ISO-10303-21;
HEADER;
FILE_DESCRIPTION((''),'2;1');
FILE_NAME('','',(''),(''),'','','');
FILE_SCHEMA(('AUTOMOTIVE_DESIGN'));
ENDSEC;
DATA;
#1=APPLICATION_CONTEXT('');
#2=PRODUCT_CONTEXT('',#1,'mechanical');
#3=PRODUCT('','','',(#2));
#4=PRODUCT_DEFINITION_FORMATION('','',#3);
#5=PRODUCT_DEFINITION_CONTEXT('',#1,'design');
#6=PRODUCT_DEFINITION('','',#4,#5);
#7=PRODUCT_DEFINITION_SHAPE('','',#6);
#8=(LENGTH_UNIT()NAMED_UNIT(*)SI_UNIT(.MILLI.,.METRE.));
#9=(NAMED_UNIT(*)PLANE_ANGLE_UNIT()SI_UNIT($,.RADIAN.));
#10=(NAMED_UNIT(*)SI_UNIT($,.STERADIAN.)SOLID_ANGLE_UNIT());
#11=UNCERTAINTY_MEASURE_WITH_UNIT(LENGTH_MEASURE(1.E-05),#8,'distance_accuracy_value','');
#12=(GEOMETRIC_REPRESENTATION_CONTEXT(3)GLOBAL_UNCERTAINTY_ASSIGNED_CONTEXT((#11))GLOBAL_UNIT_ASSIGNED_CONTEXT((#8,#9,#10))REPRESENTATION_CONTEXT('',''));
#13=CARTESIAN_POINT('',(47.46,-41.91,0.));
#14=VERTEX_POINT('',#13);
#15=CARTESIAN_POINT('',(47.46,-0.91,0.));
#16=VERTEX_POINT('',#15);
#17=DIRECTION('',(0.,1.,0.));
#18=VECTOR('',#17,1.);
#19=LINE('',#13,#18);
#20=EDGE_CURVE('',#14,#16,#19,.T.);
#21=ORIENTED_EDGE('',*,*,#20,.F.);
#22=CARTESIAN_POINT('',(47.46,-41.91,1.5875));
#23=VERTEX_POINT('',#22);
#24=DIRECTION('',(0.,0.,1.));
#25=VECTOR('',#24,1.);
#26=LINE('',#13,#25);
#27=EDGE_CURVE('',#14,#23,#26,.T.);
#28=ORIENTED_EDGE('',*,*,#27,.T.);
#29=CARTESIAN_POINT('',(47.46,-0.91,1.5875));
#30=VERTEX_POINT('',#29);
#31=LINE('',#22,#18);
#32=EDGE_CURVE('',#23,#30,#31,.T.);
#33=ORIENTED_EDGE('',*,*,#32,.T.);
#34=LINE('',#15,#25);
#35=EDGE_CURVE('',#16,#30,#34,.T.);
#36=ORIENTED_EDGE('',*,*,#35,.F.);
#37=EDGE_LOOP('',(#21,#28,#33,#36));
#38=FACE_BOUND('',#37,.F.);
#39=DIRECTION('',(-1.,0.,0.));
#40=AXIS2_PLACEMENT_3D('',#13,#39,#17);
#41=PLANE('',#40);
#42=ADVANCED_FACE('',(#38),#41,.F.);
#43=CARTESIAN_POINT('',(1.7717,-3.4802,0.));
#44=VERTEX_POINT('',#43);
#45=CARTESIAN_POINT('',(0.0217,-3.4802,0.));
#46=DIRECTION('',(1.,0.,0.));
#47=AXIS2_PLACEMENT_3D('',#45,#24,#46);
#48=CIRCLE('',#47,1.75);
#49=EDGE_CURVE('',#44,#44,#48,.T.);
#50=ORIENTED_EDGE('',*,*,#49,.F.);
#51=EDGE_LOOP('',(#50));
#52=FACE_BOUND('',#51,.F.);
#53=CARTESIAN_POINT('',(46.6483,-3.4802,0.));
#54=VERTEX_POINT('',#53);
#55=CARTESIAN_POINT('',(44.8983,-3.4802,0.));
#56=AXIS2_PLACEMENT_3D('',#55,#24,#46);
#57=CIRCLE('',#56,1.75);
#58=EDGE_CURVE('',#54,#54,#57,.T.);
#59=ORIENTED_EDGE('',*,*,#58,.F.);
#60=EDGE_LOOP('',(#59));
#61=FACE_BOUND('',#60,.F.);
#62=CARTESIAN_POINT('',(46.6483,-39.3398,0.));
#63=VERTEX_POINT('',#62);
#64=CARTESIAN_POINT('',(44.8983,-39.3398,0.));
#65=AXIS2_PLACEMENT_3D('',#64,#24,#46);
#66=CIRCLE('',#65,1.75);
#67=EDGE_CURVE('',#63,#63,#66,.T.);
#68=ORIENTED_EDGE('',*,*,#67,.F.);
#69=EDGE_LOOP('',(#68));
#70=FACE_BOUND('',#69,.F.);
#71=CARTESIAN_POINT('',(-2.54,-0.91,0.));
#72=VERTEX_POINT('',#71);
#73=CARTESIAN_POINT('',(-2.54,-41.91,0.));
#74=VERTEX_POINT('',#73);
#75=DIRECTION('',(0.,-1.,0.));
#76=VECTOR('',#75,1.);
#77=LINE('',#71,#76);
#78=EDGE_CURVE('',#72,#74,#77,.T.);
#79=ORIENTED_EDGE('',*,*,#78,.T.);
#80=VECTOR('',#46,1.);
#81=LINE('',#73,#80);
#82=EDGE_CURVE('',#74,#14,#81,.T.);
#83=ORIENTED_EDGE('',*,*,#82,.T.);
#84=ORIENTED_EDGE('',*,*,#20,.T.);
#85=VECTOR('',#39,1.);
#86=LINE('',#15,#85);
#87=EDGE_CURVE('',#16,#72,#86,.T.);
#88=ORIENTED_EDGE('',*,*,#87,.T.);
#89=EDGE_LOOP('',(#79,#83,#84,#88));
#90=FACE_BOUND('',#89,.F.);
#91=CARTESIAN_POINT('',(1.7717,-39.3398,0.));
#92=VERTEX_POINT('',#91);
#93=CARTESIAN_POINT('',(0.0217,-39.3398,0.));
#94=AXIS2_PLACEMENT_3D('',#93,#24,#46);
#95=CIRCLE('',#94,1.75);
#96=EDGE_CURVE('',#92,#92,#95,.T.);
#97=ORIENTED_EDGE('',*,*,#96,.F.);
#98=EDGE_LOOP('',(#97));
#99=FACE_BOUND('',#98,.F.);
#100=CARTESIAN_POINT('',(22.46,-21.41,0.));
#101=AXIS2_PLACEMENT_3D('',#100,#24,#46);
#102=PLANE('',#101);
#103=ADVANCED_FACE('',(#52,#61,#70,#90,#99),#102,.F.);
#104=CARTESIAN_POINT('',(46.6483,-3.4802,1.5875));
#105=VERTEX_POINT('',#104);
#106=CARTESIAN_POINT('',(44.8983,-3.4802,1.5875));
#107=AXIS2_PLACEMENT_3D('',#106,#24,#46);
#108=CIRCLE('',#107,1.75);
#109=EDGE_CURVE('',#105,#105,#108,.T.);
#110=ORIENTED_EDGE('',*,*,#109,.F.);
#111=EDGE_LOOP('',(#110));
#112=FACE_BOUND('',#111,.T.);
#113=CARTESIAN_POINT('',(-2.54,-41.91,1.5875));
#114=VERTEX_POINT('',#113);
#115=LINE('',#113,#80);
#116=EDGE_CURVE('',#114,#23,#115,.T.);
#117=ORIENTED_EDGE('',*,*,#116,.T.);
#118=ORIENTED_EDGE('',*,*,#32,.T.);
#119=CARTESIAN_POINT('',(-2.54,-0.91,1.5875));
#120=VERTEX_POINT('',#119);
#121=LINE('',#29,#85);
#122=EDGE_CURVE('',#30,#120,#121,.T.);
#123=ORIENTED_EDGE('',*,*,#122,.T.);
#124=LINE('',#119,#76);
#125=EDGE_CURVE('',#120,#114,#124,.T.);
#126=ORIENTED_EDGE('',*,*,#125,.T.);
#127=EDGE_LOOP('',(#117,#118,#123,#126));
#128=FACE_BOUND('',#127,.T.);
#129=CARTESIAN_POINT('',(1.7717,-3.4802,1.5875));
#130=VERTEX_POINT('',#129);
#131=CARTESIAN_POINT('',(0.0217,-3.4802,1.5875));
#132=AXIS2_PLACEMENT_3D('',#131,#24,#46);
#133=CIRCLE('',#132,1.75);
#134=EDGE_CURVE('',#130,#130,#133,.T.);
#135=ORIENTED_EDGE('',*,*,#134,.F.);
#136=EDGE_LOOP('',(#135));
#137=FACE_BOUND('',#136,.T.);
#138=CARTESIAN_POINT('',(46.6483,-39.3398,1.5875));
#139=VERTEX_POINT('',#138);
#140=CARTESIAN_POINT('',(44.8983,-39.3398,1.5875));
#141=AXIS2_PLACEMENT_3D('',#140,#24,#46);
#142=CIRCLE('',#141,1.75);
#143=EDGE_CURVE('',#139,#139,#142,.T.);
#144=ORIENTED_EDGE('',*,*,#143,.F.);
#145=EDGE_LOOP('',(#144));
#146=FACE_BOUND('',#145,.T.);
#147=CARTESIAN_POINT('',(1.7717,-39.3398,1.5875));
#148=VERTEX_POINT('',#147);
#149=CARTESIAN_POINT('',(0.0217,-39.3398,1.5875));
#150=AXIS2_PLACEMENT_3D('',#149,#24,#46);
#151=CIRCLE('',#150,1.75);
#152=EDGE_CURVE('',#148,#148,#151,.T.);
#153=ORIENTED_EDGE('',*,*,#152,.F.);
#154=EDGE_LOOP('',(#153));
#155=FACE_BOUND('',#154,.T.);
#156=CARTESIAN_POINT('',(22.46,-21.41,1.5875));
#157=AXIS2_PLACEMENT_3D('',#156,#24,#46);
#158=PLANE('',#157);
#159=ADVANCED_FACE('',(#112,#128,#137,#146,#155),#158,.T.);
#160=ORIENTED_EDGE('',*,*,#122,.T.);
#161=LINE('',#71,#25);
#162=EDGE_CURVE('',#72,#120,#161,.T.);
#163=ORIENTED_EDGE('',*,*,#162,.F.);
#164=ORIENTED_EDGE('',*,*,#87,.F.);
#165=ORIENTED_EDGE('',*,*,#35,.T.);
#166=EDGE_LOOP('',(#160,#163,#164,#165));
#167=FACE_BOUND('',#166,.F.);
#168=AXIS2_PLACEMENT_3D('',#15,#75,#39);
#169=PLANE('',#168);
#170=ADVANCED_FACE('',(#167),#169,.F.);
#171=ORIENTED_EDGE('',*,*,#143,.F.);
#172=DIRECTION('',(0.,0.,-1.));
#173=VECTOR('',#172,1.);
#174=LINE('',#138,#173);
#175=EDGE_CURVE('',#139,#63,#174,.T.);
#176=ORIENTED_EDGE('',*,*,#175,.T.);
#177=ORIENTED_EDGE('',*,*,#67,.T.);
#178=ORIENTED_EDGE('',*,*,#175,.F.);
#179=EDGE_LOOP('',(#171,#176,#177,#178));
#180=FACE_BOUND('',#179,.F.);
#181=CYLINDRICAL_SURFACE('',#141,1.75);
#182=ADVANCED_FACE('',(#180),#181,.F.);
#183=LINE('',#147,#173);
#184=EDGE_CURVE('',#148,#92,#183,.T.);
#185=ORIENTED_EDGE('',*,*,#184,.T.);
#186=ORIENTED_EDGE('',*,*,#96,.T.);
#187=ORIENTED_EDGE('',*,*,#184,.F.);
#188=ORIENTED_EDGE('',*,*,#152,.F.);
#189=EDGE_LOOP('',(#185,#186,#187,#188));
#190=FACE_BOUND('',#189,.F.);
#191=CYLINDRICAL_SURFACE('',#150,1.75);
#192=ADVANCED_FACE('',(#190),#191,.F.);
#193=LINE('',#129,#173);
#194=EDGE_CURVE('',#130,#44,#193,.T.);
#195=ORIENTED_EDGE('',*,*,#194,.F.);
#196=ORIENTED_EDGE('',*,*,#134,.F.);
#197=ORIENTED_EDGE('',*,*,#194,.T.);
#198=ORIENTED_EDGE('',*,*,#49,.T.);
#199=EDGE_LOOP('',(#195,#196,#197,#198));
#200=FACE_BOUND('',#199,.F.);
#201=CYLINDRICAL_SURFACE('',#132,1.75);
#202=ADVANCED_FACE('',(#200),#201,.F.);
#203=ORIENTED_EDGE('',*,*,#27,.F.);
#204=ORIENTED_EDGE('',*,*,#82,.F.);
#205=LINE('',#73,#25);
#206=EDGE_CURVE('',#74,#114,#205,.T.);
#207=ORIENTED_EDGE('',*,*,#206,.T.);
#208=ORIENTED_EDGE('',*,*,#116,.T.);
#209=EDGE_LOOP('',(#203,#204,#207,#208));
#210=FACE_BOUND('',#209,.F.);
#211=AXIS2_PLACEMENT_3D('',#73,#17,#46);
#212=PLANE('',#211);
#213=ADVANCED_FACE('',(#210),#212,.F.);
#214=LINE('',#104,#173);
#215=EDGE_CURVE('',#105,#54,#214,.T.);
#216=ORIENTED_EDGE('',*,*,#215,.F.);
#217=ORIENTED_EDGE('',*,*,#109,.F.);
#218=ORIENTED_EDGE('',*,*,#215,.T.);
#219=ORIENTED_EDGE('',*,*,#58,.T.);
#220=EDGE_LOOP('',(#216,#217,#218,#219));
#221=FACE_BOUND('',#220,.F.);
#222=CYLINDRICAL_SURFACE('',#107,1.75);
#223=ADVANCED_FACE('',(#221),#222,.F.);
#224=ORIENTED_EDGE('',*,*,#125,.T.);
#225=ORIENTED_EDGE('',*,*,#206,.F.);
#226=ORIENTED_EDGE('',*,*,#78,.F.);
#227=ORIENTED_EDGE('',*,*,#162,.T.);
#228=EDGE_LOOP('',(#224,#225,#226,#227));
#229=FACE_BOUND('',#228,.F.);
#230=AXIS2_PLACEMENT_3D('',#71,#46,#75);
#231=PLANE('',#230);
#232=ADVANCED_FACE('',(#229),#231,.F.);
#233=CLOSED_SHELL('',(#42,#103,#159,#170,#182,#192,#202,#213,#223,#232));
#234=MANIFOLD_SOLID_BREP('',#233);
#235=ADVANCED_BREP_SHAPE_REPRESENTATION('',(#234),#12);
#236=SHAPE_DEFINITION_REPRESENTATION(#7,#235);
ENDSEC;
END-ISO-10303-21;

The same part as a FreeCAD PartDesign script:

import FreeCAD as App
import Part
import Sketcher
Q = App.Units.Quantity

doc = App.newDocument("Part")
params = doc.addObject("Spreadsheet::Sheet", "Params")
for row, (alias, value) in enumerate([
    ("pad1_length", "0.0625 in"),
    ("pocket1_length", "1.31 in"),
], start=1):
    params.set(f"A{row}", alias)
    params.set(f"B{row}", "=" + value)
    params.setAlias(f"B{row}", alias)

body = doc.addObject("PartDesign::Body", "Body")

# Sketch on XY plane
sketch1 = body.newObject("Sketcher::SketchObject", "Sketch")
sketch1.AttachmentSupport = (doc.getObject("XY_Plane"), [""])
sketch1.MapMode = "FlatFace"
sketch1.addGeometry(Part.LineSegment(App.Vector(47.46, -0.91, 0), App.Vector(-2.54, -0.91, 0)), False)
sketch1.addGeometry(Part.LineSegment(App.Vector(-2.54, -0.91, 0), App.Vector(-2.54, -41.91, 0)), False)
sketch1.addGeometry(Part.LineSegment(App.Vector(-2.54, -41.91, 0), App.Vector(47.46, -41.91, 0)), False)
sketch1.addGeometry(Part.LineSegment(App.Vector(47.46, -41.91, 0), App.Vector(47.46, -0.91, 0)), False)
sketch1.addConstraint(Sketcher.Constraint("Coincident", 0, 2, 1, 1))
sketch1.addConstraint(Sketcher.Constraint("Coincident", 1, 2, 2, 1))
sketch1.addConstraint(Sketcher.Constraint("Coincident", 2, 2, 3, 1))
sketch1.addConstraint(Sketcher.Constraint("Coincident", 3, 2, 0, 1))
sketch1.addConstraint(Sketcher.Constraint("Horizontal", 0))
sketch1.addConstraint(Sketcher.Constraint("Vertical", 1))
sketch1.addConstraint(Sketcher.Constraint("Horizontal", 2))
sketch1.addConstraint(Sketcher.Constraint("Vertical", 3))
sketch1.addConstraint(Sketcher.Constraint("DistanceX", 0, 2, -1, 1, Q("0.1 in")))
sketch1.addConstraint(Sketcher.Constraint("DistanceY", 1, 2, -1, 1, Q("1.65 in")))
sketch1.addConstraint(Sketcher.Constraint("DistanceX", 0, 2, 0, 1, Q("1.9685 in")))
sketch1.addConstraint(Sketcher.Constraint("DistanceY", 1, 2, 1, 1, Q("41 mm")))
pad1 = body.newObject("PartDesign::Pad", "Pad")
pad1.Profile = sketch1
pad1.setExpression("Length", "Params.pad1_length")

# Sketch on XY plane
sketch2 = body.newObject("Sketcher::SketchObject", "Sketch001")
sketch2.AttachmentSupport = (doc.getObject("XY_Plane"), [""])
sketch2.MapMode = "FlatFace"
sketch2.AttachmentOffset = App.Placement(App.Vector(0, 0, 0.0625 * 25.4), App.Rotation())
sketch2.addGeometry(Part.Circle(App.Vector(44.8983, -3.4802, 0), App.Vector(0, 0, 1), 1.75), False)
sketch2.addGeometry(Part.Circle(App.Vector(44.8983, -39.3398, 0), App.Vector(0, 0, 1), 1.75), False)
sketch2.addGeometry(Part.Circle(App.Vector(0.0217, -39.3398, 0), App.Vector(0, 0, 1), 1.75), False)
sketch2.addGeometry(Part.Circle(App.Vector(0.0217, -3.4802, 0), App.Vector(0, 0, 1), 1.75), False)
sketch2.addConstraint(Sketcher.Constraint("Equal", 0, 1))
sketch2.addConstraint(Sketcher.Constraint("Equal", 1, 2))
sketch2.addConstraint(Sketcher.Constraint("Equal", 2, 3))
sketch2.addConstraint(Sketcher.Constraint("Horizontal", 1, 3, 2, 3))
sketch2.addConstraint(Sketcher.Constraint("Horizontal", 0, 3, 3, 3))
sketch2.addConstraint(Sketcher.Constraint("Vertical", 0, 3, 1, 3))
sketch2.addConstraint(Sketcher.Constraint("Vertical", 2, 3, 3, 3))
sketch2.addConstraint(Sketcher.Constraint("Diameter", 0, Q("0.1378 in")))
sketch2.addConstraint(Sketcher.Constraint("DistanceY", 1, 3, -1, 1, Q("1.5488 in")))
sketch2.addConstraint(Sketcher.Constraint("DistanceY", 1, 3, 0, 3, Q("1.4118 in")))
sketch2.addConstraint(Sketcher.Constraint("DistanceX", 2, 3, 1, 3, Q("1.7668 in")))
sketch2.addConstraint(Sketcher.Constraint("DistanceX", -1, 1, 0, 3, Q("44.8983 mm")))
pocket1 = body.newObject("PartDesign::Pocket", "Pocket")
pocket1.Profile = sketch2
pocket1.setExpression("Length", "Params.pocket1_length")

doc.recompute()
